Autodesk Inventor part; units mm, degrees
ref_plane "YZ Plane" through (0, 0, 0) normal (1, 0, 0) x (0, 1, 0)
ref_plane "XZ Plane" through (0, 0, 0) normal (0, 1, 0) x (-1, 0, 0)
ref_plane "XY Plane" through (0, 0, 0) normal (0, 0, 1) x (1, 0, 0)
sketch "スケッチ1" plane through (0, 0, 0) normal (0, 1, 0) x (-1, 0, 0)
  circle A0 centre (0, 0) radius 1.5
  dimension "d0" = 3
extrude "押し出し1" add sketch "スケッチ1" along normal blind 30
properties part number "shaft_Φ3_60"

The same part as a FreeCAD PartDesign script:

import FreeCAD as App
import Part
import Sketcher
Q = App.Units.Quantity

doc = App.newDocument("Part")
body = doc.addObject("PartDesign::Body", "Body")

# Sketch on XZ plane
sketch1 = body.newObject("Sketcher::SketchObject", "Sketch")
sketch1.AttachmentSupport = (doc.getObject("XZ_Plane"), [""])
sketch1.MapMode = "FlatFace"
sketch1.addGeometry(Part.Circle(App.Vector(0, 0, 0), App.Vector(0, 0, 1), 1.5), False)
sketch1.addConstraint([
    Sketcher.Constraint("Coincident", 0, 3, -1, 1),
    Sketcher.Constraint("Diameter", 0, Q("3 mm")),
])
pad1 = body.newObject("PartDesign::Pad", "Pad")
pad1.Profile = sketch1
pad1.Length = 30
pad1.Reversed = True

doc.recompute()
